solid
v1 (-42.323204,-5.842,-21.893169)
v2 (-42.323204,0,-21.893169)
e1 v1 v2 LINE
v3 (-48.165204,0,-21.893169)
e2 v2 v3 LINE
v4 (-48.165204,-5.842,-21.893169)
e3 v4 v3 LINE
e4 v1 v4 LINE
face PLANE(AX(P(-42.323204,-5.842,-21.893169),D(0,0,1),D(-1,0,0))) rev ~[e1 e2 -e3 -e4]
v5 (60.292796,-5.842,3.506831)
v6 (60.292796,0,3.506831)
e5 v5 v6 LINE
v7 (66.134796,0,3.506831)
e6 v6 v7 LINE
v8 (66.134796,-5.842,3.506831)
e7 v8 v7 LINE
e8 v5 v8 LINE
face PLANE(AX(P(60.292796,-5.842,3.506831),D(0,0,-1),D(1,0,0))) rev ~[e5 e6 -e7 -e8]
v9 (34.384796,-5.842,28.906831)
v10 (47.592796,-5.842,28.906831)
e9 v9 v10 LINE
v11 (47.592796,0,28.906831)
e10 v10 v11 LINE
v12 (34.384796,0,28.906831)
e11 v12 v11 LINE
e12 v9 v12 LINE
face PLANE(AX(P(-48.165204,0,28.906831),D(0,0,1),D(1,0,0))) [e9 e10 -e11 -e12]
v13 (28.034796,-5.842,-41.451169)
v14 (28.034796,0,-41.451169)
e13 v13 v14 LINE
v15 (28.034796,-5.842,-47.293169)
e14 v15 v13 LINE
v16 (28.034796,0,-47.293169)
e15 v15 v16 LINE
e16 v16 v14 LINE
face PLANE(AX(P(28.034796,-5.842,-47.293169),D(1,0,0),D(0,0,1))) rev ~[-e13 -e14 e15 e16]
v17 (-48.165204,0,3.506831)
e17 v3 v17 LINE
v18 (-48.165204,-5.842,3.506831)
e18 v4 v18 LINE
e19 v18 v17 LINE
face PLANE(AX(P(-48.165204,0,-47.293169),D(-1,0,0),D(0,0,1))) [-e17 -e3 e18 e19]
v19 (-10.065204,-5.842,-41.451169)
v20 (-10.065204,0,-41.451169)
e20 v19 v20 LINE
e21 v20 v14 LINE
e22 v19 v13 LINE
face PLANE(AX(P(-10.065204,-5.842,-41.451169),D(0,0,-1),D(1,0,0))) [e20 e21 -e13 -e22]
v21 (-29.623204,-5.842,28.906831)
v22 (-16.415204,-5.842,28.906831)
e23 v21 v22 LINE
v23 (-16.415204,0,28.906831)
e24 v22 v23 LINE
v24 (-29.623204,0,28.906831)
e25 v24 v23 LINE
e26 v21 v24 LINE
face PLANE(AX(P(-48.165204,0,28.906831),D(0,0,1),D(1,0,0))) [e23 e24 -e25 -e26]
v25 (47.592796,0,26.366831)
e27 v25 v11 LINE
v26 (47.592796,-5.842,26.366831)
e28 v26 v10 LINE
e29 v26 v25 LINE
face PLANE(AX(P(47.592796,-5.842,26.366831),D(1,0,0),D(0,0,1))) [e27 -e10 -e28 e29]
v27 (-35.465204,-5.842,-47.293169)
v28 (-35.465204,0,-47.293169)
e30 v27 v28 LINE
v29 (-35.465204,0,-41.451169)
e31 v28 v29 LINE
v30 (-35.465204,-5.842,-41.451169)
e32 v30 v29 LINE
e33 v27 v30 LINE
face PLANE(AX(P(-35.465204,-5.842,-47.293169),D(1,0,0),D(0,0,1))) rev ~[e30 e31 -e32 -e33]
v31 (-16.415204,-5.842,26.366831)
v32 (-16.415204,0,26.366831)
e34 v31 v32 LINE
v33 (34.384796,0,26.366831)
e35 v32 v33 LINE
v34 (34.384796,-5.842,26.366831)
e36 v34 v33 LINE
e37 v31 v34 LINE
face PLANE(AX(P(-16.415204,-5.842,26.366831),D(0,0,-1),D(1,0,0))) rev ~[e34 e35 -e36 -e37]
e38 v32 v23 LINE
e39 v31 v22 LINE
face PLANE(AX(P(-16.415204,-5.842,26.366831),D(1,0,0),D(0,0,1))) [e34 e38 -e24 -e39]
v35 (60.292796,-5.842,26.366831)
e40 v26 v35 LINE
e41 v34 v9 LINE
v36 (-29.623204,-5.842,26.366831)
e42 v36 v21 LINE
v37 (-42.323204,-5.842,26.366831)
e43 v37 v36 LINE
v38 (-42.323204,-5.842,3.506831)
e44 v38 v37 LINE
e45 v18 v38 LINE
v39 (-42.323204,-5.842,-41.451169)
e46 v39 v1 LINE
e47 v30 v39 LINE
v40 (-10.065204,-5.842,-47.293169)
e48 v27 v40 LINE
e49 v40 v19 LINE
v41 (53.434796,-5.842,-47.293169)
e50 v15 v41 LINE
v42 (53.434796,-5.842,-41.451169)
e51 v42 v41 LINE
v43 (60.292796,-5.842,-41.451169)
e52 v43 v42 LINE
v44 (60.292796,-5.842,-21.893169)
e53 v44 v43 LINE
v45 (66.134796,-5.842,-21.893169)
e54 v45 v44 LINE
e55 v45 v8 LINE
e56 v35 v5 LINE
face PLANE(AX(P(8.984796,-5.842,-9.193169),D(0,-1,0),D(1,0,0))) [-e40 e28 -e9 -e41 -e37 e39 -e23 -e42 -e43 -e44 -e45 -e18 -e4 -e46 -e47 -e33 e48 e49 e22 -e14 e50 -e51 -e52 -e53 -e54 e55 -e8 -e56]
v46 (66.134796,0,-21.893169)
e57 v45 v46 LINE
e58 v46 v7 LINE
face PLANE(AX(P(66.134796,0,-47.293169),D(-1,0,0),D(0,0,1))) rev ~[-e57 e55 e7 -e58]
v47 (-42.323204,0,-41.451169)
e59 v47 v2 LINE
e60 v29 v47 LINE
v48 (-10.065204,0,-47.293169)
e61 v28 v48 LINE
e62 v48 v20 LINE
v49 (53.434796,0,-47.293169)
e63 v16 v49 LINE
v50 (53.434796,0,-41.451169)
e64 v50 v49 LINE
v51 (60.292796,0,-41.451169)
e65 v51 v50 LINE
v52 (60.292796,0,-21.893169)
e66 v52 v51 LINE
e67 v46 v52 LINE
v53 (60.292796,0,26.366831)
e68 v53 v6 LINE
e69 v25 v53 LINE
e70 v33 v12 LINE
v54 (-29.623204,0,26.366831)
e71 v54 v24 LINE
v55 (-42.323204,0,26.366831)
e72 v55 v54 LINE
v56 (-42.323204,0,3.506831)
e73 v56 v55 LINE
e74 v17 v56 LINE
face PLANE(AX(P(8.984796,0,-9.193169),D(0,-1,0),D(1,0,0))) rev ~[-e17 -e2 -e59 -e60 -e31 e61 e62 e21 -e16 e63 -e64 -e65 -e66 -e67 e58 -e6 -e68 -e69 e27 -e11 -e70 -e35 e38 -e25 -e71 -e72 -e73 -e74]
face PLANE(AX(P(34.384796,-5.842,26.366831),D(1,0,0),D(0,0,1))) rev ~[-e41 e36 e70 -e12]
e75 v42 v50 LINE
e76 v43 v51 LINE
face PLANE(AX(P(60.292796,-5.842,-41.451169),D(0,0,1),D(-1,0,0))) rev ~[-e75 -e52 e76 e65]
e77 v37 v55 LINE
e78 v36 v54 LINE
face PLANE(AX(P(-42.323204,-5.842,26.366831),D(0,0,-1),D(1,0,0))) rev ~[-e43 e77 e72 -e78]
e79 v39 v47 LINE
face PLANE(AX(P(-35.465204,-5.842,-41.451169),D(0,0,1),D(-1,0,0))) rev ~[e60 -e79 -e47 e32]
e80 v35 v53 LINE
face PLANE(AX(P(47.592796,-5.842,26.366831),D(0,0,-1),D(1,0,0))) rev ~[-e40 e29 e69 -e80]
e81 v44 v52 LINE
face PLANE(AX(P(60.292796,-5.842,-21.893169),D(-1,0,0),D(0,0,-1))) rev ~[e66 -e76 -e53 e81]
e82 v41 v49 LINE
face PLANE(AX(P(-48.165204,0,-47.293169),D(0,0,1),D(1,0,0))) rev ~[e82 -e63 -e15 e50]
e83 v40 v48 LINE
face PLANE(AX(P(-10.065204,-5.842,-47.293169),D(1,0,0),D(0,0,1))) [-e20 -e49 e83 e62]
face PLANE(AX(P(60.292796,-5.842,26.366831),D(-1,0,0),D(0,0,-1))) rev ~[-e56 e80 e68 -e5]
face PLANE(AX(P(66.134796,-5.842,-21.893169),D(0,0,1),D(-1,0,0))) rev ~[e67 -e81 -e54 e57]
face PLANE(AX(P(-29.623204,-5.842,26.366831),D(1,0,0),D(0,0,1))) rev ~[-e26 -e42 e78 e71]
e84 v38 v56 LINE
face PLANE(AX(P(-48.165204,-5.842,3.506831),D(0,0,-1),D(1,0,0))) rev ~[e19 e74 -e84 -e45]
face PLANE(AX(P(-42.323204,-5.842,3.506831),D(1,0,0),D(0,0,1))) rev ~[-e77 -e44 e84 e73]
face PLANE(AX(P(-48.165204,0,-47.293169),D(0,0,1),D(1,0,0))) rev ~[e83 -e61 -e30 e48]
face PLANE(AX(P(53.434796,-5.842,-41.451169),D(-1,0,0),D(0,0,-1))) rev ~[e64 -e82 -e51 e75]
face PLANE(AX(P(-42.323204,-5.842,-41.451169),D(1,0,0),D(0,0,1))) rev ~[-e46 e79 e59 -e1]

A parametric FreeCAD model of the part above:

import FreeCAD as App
import Part
import Sketcher
from FreeCAD import Vector
Q = App.Units.Quantity

doc = App.newDocument("Part")
body = doc.addObject("PartDesign::Body", "Body")

sketch1 = body.newObject("Sketcher::SketchObject", "Sketch")
sketch1.AttachmentSupport = (doc.getObject("XZ_Plane"), [""])
sketch1.MapMode = "FlatFace"
sketch1.addGeometry(Part.LineSegment(Vector(-48, 29, 0), Vector(-48, -47, 0)), False)
sketch1.addGeometry(Part.LineSegment(Vector(-48, -47, 0), Vector(66, -47, 0)), False)
sketch1.addGeometry(Part.LineSegment(Vector(66, -47, 0), Vector(66, 29, 0)), False)
sketch1.addGeometry(Part.LineSegment(Vector(66, 29, 0), Vector(-48, 29, 0)), False)
sketch1.addConstraint(Sketcher.Constraint("Coincident", 0, 2, 1, 1))
sketch1.addConstraint(Sketcher.Constraint("Coincident", 1, 2, 2, 1))
sketch1.addConstraint(Sketcher.Constraint("Coincident", 2, 2, 3, 1))
sketch1.addConstraint(Sketcher.Constraint("Coincident", 3, 2, 0, 1))
sketch1.addConstraint(Sketcher.Constraint("Vertical", 0))
sketch1.addConstraint(Sketcher.Constraint("Horizontal", 1))
sketch1.addConstraint(Sketcher.Constraint("Vertical", 2))
sketch1.addConstraint(Sketcher.Constraint("Horizontal", 3))
sketch1.addConstraint(Sketcher.Constraint("DistanceY", 0, 2, 0, 1, Q("3 in")))
sketch1.addConstraint(Sketcher.Constraint("DistanceX", 1, 1, 1, 2, Q("4.5 in")))
sketch1.addConstraint(Sketcher.Constraint("DistanceY", 0, 2, -1, 1, 47.293169))
sketch1.addConstraint(Sketcher.Constraint("DistanceX", 0, 2, -1, 1, 48.165204))
pad1 = body.newObject("PartDesign::Pad", "Pad")
pad1.Profile = sketch1
pad1.Length = Q("0.23 in")

sketch2 = body.newObject("Sketcher::SketchObject", "Sketch001")
sketch2.AttachmentSupport = (doc.getObject("XZ_Plane"), [""])
sketch2.MapMode = "FlatFace"
sketch2.AttachmentOffset = App.Placement(Vector(0, 0, 0.23 * 25.4), App.Rotation())
sketch2.addGeometry(Part.LineSegment(Vector(-48.2, 28.9, 0), Vector(-48.2, 3.5, 0)), False)
sketch2.addGeometry(Part.LineSegment(Vector(-48.2, 3.5, 0), Vector(-42.3, 3.5, 0)), False)
sketch2.addGeometry(Part.LineSegment(Vector(-42.3, 3.5, 0), Vector(-42.3, 26.4, 0)), False)
sketch2.addGeometry(Part.LineSegment(Vector(-42.3, 26.4, 0), Vector(-29.6, 26.4, 0)), False)
sketch2.addGeometry(Part.LineSegment(Vector(-29.6, 26.4, 0), Vector(-29.6, 28.9, 0)), False)
sketch2.addGeometry(Part.LineSegment(Vector(-29.6, 28.9, 0), Vector(-48.2, 28.9, 0)), False)
sketch2.addGeometry(Part.LineSegment(Vector(-48.2, -47.3, 0), Vector(-35.5, -47.3, 0)), False)
sketch2.addGeometry(Part.LineSegment(Vector(-35.5, -47.3, 0), Vector(-35.5, -41.5, 0)), False)
sketch2.addGeometry(Part.LineSegment(Vector(-35.5, -41.5, 0), Vector(-42.3, -41.5, 0)), False)
sketch2.addGeometry(Part.LineSegment(Vector(-42.3, -41.5, 0), Vector(-42.3, -21.9, 0)), False)
sketch2.addGeometry(Part.LineSegment(Vector(-42.3, -21.9, 0), Vector(-48.2, -21.9, 0)), False)
sketch2.addGeometry(Part.LineSegment(Vector(-48.2, -21.9, 0), Vector(-48.2, -47.3, 0)), False)
sketch2.addGeometry(Part.LineSegment(Vector(-10.1, -41.5, 0), Vector(-10.1, -47.3, 0)), False)
sketch2.addGeometry(Part.LineSegment(Vector(-10.1, -47.3, 0), Vector(28, -47.3, 0)), False)
sketch2.addGeometry(Part.LineSegment(Vector(28, -47.3, 0), Vector(28, -41.5, 0)), False)
sketch2.addGeometry(Part.LineSegment(Vector(28, -41.5, 0), Vector(-10.1, -41.5, 0)), False)
sketch2.addGeometry(Part.LineSegment(Vector(53.4, -41.5, 0), Vector(53.4, -47.3, 0)), False)
sketch2.addGeometry(Part.LineSegment(Vector(53.4, -47.3, 0), Vector(66.1, -47.3, 0)), False)
sketch2.addGeometry(Part.LineSegment(Vector(66.1, -47.3, 0), Vector(66.1, -21.9, 0)), False)
sketch2.addGeometry(Part.LineSegment(Vector(66.1, -21.9, 0), Vector(60.3, -21.9, 0)), False)
sketch2.addGeometry(Part.LineSegment(Vector(60.3, -21.9, 0), Vector(60.3, -41.5, 0)), False)
sketch2.addGeometry(Part.LineSegment(Vector(60.3, -41.5, 0), Vector(53.4, -41.5, 0)), False)
sketch2.addGeometry(Part.LineSegment(Vector(60.3, 3.5, 0), Vector(66.1, 3.5, 0)), False)
sketch2.addGeometry(Part.LineSegment(Vector(66.1, 3.5, 0), Vector(66.1, 28.9, 0)), False)
sketch2.addGeometry(Part.LineSegment(Vector(66.1, 28.9, 0), Vector(47.6, 28.9, 0)), False)
sketch2.addGeometry(Part.LineSegment(Vector(47.6, 28.9, 0), Vector(47.6, 26.4, 0)), False)
sketch2.addGeometry(Part.LineSegment(Vector(47.6, 26.4, 0), Vector(60.3, 26.4, 0)), False)
sketch2.addGeometry(Part.LineSegment(Vector(60.3, 26.4, 0), Vector(60.3, 3.5, 0)), False)
sketch2.addGeometry(Part.LineSegment(Vector(-16.4, 28.9, 0), Vector(-16.4, 26.4, 0)), False)
sketch2.addGeometry(Part.LineSegment(Vector(-16.4, 26.4, 0), Vector(34.4, 26.4, 0)), False)
sketch2.addGeometry(Part.LineSegment(Vector(34.4, 26.4, 0), Vector(34.4, 28.9, 0)), False)
sketch2.addGeometry(Part.LineSegment(Vector(34.4, 28.9, 0), Vector(-16.4, 28.9, 0)), False)
sketch2.addConstraint(Sketcher.Constraint("Coincident", 0, 2, 1, 1))
sketch2.addConstraint(Sketcher.Constraint("Coincident", 1, 2, 2, 1))
sketch2.addConstraint(Sketcher.Constraint("Coincident", 2, 2, 3, 1))
sketch2.addConstraint(Sketcher.Constraint("Coincident", 3, 2, 4, 1))
sketch2.addConstraint(Sketcher.Constraint("Coincident", 4, 2, 5, 1))
sketch2.addConstraint(Sketcher.Constraint("Coincident", 5, 2, 0, 1))
sketch2.addConstraint(Sketcher.Constraint("Coincident", 6, 2, 7, 1))
sketch2.addConstraint(Sketcher.Constraint("Coincident", 7, 2, 8, 1))
sketch2.addConstraint(Sketcher.Constraint("Coincident", 8, 2, 9, 1))
sketch2.addConstraint(Sketcher.Constraint("Coincident", 9, 2, 10, 1))
sketch2.addConstraint(Sketcher.Constraint("Coincident", 10, 2, 11, 1))
sketch2.addConstraint(Sketcher.Constraint("Coincident", 11, 2, 6, 1))
sketch2.addConstraint(Sketcher.Constraint("Coincident", 12, 2, 13, 1))
sketch2.addConstraint(Sketcher.Constraint("Coincident", 13, 2, 14, 1))
sketch2.addConstraint(Sketcher.Constraint("Coincident", 14, 2, 15, 1))
sketch2.addConstraint(Sketcher.Constraint("Coincident", 15, 2, 12, 1))
sketch2.addConstraint(Sketcher.Constraint("Coincident", 16, 2, 17, 1))
sketch2.addConstraint(Sketcher.Constraint("Coincident", 17, 2, 18, 1))
sketch2.addConstraint(Sketcher.Constraint("Coincident", 18, 2, 19, 1))
sketch2.addConstraint(Sketcher.Constraint("Coincident", 19, 2, 20, 1))
sketch2.addConstraint(Sketcher.Constraint("Coincident", 20, 2, 21, 1))
sketch2.addConstraint(Sketcher.Constraint("Coincident", 21, 2, 16, 1))
sketch2.addConstraint(Sketcher.Constraint("Coincident", 22, 2, 23, 1))
sketch2.addConstraint(Sketcher.Constraint("Coincident", 23, 2, 24, 1))
sketch2.addConstraint(Sketcher.Constraint("Coincident", 24, 2, 25, 1))
sketch2.addConstraint(Sketcher.Constraint("Coincident", 25, 2, 26, 1))
sketch2.addConstraint(Sketcher.Constraint("Coincident", 26, 2, 27, 1))
sketch2.addConstraint(Sketcher.Constraint("Coincident", 27, 2, 22, 1))
sketch2.addConstraint(Sketcher.Constraint("Coincident", 28, 2, 29, 1))
sketch2.addConstraint(Sketcher.Constraint("Coincident", 29, 2, 30, 1))
sketch2.addConstraint(Sketcher.Constraint("Coincident", 30, 2, 31, 1))
sketch2.addConstraint(Sketcher.Constraint("Coincident", 31, 2, 28, 1))
sketch2.addConstraint(Sketcher.Constraint("Vertical", 0))
sketch2.addConstraint(Sketcher.Constraint("Horizontal", 1))
sketch2.addConstraint(Sketcher.Constraint("Vertical", 2))
sketch2.addConstraint(Sketcher.Constraint("Horizontal", 3))
sketch2.addConstraint(Sketcher.Constraint("Vertical", 4))
sketch2.addConstraint(Sketcher.Constraint("Horizontal", 5))
sketch2.addConstraint(Sketcher.Constraint("Horizontal", 6))
sketch2.addConstraint(Sketcher.Constraint("Vertical", 7))
sketch2.addConstraint(Sketcher.Constraint("Horizontal", 8))
sketch2.addConstraint(Sketcher.Constraint("Vertical", 9))
sketch2.addConstraint(Sketcher.Constraint("Horizontal", 10))
sketch2.addConstraint(Sketcher.Constraint("Vertical", 11))
sketch2.addConstraint(Sketcher.Constraint("Vertical", 12))
sketch2.addConstraint(Sketcher.Constraint("Horizontal", 13))
sketch2.addConstraint(Sketcher.Constraint("Vertical", 14))
sketch2.addConstraint(Sketcher.Constraint("Horizontal", 15))
sketch2.addConstraint(Sketcher.Constraint("Vertical", 16))
sketch2.addConstraint(Sketcher.Constraint("Horizontal", 17))
sketch2.addConstraint(Sketcher.Constraint("Vertical", 18))
sketch2.addConstraint(Sketcher.Constraint("Horizontal", 19))
sketch2.addConstraint(Sketcher.Constraint("Vertical", 20))
sketch2.addConstraint(Sketcher.Constraint("Horizontal", 21))
sketch2.addConstraint(Sketcher.Constraint("Horizontal", 22))
sketch2.addConstraint(Sketcher.Constraint("Vertical", 23))
sketch2.addConstraint(Sketcher.Constraint("Horizontal", 24))
sketch2.addConstraint(Sketcher.Constraint("Vertical", 25))
sketch2.addConstraint(Sketcher.Constraint("Horizontal", 26))
sketch2.addConstraint(Sketcher.Constraint("Vertical", 27))
sketch2.addConstraint(Sketcher.Constraint("Vertical", 28))
sketch2.addConstraint(Sketcher.Constraint("Horizontal", 29))
sketch2.addConstraint(Sketcher.Constraint("Vertical", 30))
sketch2.addConstraint(Sketcher.Constraint("Horizontal", 31))
sketch2.addConstraint(Sketcher.Constraint("Horizontal", 11, 2, 12, 2))
sketch2.addConstraint(Sketcher.Constraint("Horizontal", 8, 2, 14, 2))
sketch2.addConstraint(Sketcher.Constraint("Horizontal", 13, 2, 16, 2))
sketch2.addConstraint(Sketcher.Constraint("Horizontal", 10, 2, 18, 2))
sketch2.addConstraint(Sketcher.Constraint("Horizontal", 15, 2, 20, 2))
sketch2.addConstraint(Sketcher.Constraint("Horizontal", 1, 2, 22, 2))
sketch2.addConstraint(Sketcher.Constraint("Horizontal", 5, 2, 23, 2))
sketch2.addConstraint(Sketcher.Constraint("Horizontal", 3, 2, 25, 2))
sketch2.addConstraint(Sketcher.Constraint("Horizontal", 26, 2, 28, 2))
sketch2.addConstraint(Sketcher.Constraint("Horizontal", 24, 2, 30, 2))
sketch2.addConstraint(Sketcher.Constraint("Vertical", 2, 2, 8, 2))
sketch2.addConstraint(Sketcher.Constraint("Vertical", 5, 2, 10, 2))
sketch2.addConstraint(Sketcher.Constraint("Vertical", 18, 2, 22, 2))
sketch2.addConstraint(Sketcher.Constraint("Vertical", 20, 2, 26, 2))
sketch2.addConstraint(Sketcher.Constraint("Equal", 3, 6))
sketch2.addConstraint(Sketcher.Constraint("Equal", 6, 17))
sketch2.addConstraint(Sketcher.Constraint("Equal", 10, 19))
sketch2.addConstraint(Sketcher.Constraint("Equal", 5, 24))
sketch2.addConstraint(Sketcher.Constraint("Equal", 22, 7))
sketch2.addConstraint(Sketcher.Constraint("Equal", 0, 11))
sketch2.addConstraint(Sketcher.Constraint("DistanceX", 29, 1, 29, 2, Q("2 in")))
sketch2.addConstraint(Sketcher.Constraint("DistanceY", 0, 2, 0, 1, Q("1 in")))
sketch2.addConstraint(Sketcher.Constraint("DistanceX", 3, 1, 3, 2, Q("0.5 in")))
sketch2.addConstraint(Sketcher.Constraint("DistanceX", 13, 1, 13, 2, Q("1.5 in")))
sketch2.addConstraint(Sketcher.Constraint("DistanceY", 2, 1, 2, 2, Q("0.9 in")))
sketch2.addConstraint(Sketcher.Constraint("DistanceY", 6, 2, 1, 2, Q("2 in")))
sketch2.addConstraint(Sketcher.Constraint("DistanceX", 6, 2, 12, 2, Q("1 in")))
sketch2.addConstraint(Sketcher.Constraint("DistanceX", 13, 2, 16, 2, Q("1 in")))
sketch2.addConstraint(Sketcher.Constraint("DistanceX", 1, 1, 1, 2, Q("0.23 in")))
sketch2.addConstraint(Sketcher.Constraint("DistanceX", 3, 2, 28, 2, Q("0.52 in")))
sketch2.addConstraint(Sketcher.Constraint("DistanceY", -1, 1, 0, 2, 3.506831))
sketch2.addConstraint(Sketcher.Constraint("DistanceX", 0, 2, -1, 1, 48.165204))
pocket1 = body.newObject("PartDesign::Pocket", "Pocket")
pocket1.Profile = sketch2
pocket1.Type = "ThroughAll"

doc.recompute()
